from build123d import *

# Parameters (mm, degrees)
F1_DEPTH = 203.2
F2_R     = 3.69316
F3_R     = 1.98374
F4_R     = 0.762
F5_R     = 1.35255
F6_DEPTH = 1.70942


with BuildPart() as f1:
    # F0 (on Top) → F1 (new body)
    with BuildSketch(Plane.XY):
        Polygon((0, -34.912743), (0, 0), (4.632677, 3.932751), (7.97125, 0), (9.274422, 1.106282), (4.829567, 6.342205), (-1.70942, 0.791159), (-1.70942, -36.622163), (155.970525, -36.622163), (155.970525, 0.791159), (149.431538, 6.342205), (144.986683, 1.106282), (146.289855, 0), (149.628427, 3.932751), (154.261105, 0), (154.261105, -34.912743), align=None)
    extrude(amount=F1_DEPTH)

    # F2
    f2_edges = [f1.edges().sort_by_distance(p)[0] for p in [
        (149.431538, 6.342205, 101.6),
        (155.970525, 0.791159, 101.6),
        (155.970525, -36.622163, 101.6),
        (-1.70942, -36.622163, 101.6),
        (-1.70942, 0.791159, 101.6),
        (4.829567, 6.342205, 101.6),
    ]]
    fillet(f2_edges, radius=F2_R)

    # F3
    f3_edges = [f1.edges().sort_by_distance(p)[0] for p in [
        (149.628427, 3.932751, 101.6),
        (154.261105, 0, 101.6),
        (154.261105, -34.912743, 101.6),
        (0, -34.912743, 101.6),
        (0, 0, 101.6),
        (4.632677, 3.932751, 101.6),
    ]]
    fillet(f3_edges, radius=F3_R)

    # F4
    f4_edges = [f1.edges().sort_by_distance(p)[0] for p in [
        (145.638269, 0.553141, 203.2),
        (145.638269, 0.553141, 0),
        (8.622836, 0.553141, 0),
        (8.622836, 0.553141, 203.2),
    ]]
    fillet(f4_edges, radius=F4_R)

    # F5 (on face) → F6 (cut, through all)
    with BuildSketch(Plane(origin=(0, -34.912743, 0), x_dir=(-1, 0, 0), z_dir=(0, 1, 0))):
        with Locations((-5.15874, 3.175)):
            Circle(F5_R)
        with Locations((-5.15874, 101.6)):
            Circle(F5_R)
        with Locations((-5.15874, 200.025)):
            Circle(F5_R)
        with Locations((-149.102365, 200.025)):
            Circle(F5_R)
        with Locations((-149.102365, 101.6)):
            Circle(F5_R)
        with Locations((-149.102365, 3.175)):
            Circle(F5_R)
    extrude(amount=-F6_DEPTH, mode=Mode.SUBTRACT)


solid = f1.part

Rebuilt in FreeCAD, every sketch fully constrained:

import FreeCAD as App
import Part
import Sketcher
Q = App.Units.Quantity


def edges_at(feature, points):
    """Names of the edges that pass closest to the given points."""
    edges = feature.Shape.Edges
    near = lambda p: min(range(len(edges)), key=lambda i: edges[i].distToShape(Part.Vertex(*p))[0])
    return sorted({f"Edge{near(p) + 1}" for p in points})

doc = App.newDocument("Part")
body = doc.addObject("PartDesign::Body", "Body")

sketch1 = body.newObject("Sketcher::SketchObject", "Sketch")
sketch1.AttachmentSupport = (doc.getObject("XY_Plane"), [""])
sketch1.MapMode = "FlatFace"
sketch1.addGeometry(Part.LineSegment(App.Vector(0, -34.9, 0), App.Vector(0, 0, 0)), False)
sketch1.addGeometry(Part.LineSegment(App.Vector(0, 0, 0), App.Vector(4.6, 3.9, 0)), False)
sketch1.addGeometry(Part.LineSegment(App.Vector(4.6, 3.9, 0), App.Vector(8, 0, 0)), False)
sketch1.addGeometry(Part.LineSegment(App.Vector(8, 0, 0), App.Vector(9.3, 1.1, 0)), False)
sketch1.addGeometry(Part.LineSegment(App.Vector(9.3, 1.1, 0), App.Vector(4.8, 6.3, 0)), False)
sketch1.addGeometry(Part.LineSegment(App.Vector(4.8, 6.3, 0), App.Vector(-1.7, 0.8, 0)), False)
sketch1.addGeometry(Part.LineSegment(App.Vector(-1.7, 0.8, 0), App.Vector(-1.7, -36.6, 0)), False)
sketch1.addGeometry(Part.LineSegment(App.Vector(-1.7, -36.6, 0), App.Vector(156, -36.6, 0)), False)
sketch1.addGeometry(Part.LineSegment(App.Vector(156, -36.6, 0), App.Vector(156, 0.8, 0)), False)
sketch1.addGeometry(Part.LineSegment(App.Vector(156, 0.8, 0), App.Vector(149.4, 6.3, 0)), False)
sketch1.addGeometry(Part.LineSegment(App.Vector(149.4, 6.3, 0), App.Vector(145, 1.1, 0)), False)
sketch1.addGeometry(Part.LineSegment(App.Vector(145, 1.1, 0), App.Vector(146.3, 0, 0)), False)
sketch1.addGeometry(Part.LineSegment(App.Vector(146.3, 0, 0), App.Vector(149.6, 3.9, 0)), False)
sketch1.addGeometry(Part.LineSegment(App.Vector(149.6, 3.9, 0), App.Vector(154.3, 0, 0)), False)
sketch1.addGeometry(Part.LineSegment(App.Vector(154.3, 0, 0), App.Vector(154.3, -34.9, 0)), False)
sketch1.addGeometry(Part.LineSegment(App.Vector(154.3, -34.9, 0), App.Vector(0, -34.9, 0)), False)
sketch1.addConstraint(Sketcher.Constraint("Coincident", 0, 2, 1, 1))
sketch1.addConstraint(Sketcher.Constraint("Coincident", 1, 2, 2, 1))
sketch1.addConstraint(Sketcher.Constraint("Coincident", 2, 2, 3, 1))
sketch1.addConstraint(Sketcher.Constraint("Coincident", 3, 2, 4, 1))
sketch1.addConstraint(Sketcher.Constraint("Coincident", 4, 2, 5, 1))
sketch1.addConstraint(Sketcher.Constraint("Coincident", 5, 2, 6, 1))
sketch1.addConstraint(Sketcher.Constraint("Coincident", 6, 2, 7, 1))
sketch1.addConstraint(Sketcher.Constraint("Coincident", 7, 2, 8, 1))
sketch1.addConstraint(Sketcher.Constraint("Coincident", 8, 2, 9, 1))
sketch1.addConstraint(Sketcher.Constraint("Coincident", 9, 2, 10, 1))
sketch1.addConstraint(Sketcher.Constraint("Coincident", 10, 2, 11, 1))
sketch1.addConstraint(Sketcher.Constraint("Coincident", 11, 2, 12, 1))
sketch1.addConstraint(Sketcher.Constraint("Coincident", 12, 2, 13, 1))
sketch1.addConstraint(Sketcher.Constraint("Coincident", 13, 2, 14, 1))
sketch1.addConstraint(Sketcher.Constraint("Coincident", 14, 2, 15, 1))
sketch1.addConstraint(Sketcher.Constraint("Coincident", 15, 2, 0, 1))
sketch1.addConstraint(Sketcher.Constraint("Vertical", 0))
sketch1.addConstraint(Sketcher.Constraint("Vertical", 6))
sketch1.addConstraint(Sketcher.Constraint("Horizontal", 7))
sketch1.addConstraint(Sketcher.Constraint("Vertical", 8))
sketch1.addConstraint(Sketcher.Constraint("Vertical", 14))
sketch1.addConstraint(Sketcher.Constraint("Horizontal", 15))
sketch1.addConstraint(Sketcher.Constraint("Coincident", 0, 2, -1, 1))
sketch1.addConstraint(Sketcher.Constraint("PointOnObject", 2, 2, -1))
sketch1.addConstraint(Sketcher.Constraint("PointOnObject", 11, 2, -1))
sketch1.addConstraint(Sketcher.Constraint("PointOnObject", 13, 2, -1))
sketch1.addConstraint(Sketcher.Constraint("Perpendicular", 1, 2))
sketch1.addConstraint(Sketcher.Constraint("Perpendicular", 2, 3))
sketch1.addConstraint(Sketcher.Constraint("Perpendicular", 3, 4))
sketch1.addConstraint(Sketcher.Constraint("Perpendicular", 4, 5))
sketch1.addConstraint(Sketcher.Constraint("Perpendicular", 9, 10))
sketch1.addConstraint(Sketcher.Constraint("Perpendicular", 10, 11))
sketch1.addConstraint(Sketcher.Constraint("Perpendicular", 11, 12))
sketch1.addConstraint(Sketcher.Constraint("Perpendicular", 12, 13))
sketch1.addConstraint(Sketcher.Constraint("Horizontal", 5, 2, 8, 2))
sketch1.addConstraint(Sketcher.Constraint("Horizontal", 4, 2, 9, 2))
sketch1.addConstraint(Sketcher.Constraint("Horizontal", 3, 2, 10, 2))
sketch1.addConstraint(Sketcher.Constraint("Horizontal", 1, 2, 12, 2))
sketch1.addConstraint(Sketcher.Constraint("Equal", 5, 9))
sketch1.addConstraint(Sketcher.Constraint("Distance", 2, Q("0.2031 in")))
sketch1.addConstraint(Sketcher.Constraint("Distance", 3, Q("0.0673 in")))
sketch1.addConstraint(Sketcher.Constraint("Distance", 4, Q("0.2704 in")))
sketch1.addConstraint(Sketcher.Constraint("DistanceX", 5, 2, -1, 1, Q("0.0673 in")))
sketch1.addConstraint(Sketcher.Constraint("DistanceY", 7, 2, 14, 2, Q("0.0673 in")))
sketch1.addConstraint(Sketcher.Constraint("DistanceX", 12, 2, 8, 2, 6.342098))
sketch1.addConstraint(Sketcher.Constraint("DistanceX", 7, 1, 7, 2, 157.679945))
sketch1.addConstraint(Sketcher.Constraint("DistanceY", 0, 1, 0, 2, 34.912743))
pad1 = body.newObject("PartDesign::Pad", "Pad")
pad1.Profile = sketch1
pad1.Length = Q("8 in")
doc.recompute()

fillet = body.newObject("PartDesign::Fillet", "Fillet")
fillet.Base = (pad1, edges_at(pad1, [
    (149.432, 6.342, 101.6),
    (155.971, 0.791, 101.6),
    (155.971, -36.622, 101.6),
    (-1.709, -36.622, 101.6),
    (-1.709, 0.791, 101.6),
    (4.83, 6.342, 101.6),
]))
fillet.Radius = Q("0.1454 in")
doc.recompute()

fillet2 = body.newObject("PartDesign::Fillet", "Fillet001")
fillet2.Base = (fillet, edges_at(fillet, [
    (149.628, 3.933, 101.6),
    (154.261, 0, 101.6),
    (154.261, -34.913, 101.6),
    (0, -34.913, 101.6),
    (0, 0, 101.6),
    (4.633, 3.933, 101.6),
]))
fillet2.Radius = Q("0.0781 in")
doc.recompute()

fillet3 = body.newObject("PartDesign::Fillet", "Fillet002")
fillet3.Base = (fillet2, edges_at(fillet2, [
    (145.638, 0.553, 203.2),
    (145.638, 0.553, 0),
    (8.623, 0.553, 0),
    (8.623, 0.553, 203.2),
]))
fillet3.Radius = Q("0.03 in")

sketch2 = body.newObject("Sketcher::SketchObject", "Sketch001")
sketch2.AttachmentSupport = (doc.getObject("XZ_Plane"), [""])
sketch2.MapMode = "FlatFace"
sketch2.AttachmentOffset = App.Placement(App.Vector(0, 0, 34.912743), App.Rotation())
sketch2.addGeometry(Part.Circle(App.Vector(5.2, 3.2, 0), App.Vector(0, 0, 1), 1.4), False)
sketch2.addGeometry(Part.Circle(App.Vector(5.2, 101.6, 0), App.Vector(0, 0, 1), 1.4), False)
sketch2.addGeometry(Part.Circle(App.Vector(5.2, 200, 0), App.Vector(0, 0, 1), 1.4), False)
sketch2.addGeometry(Part.Circle(App.Vector(149.1, 200, 0), App.Vector(0, 0, 1), 1.4), False)
sketch2.addGeometry(Part.Circle(App.Vector(149.1, 101.6, 0), App.Vector(0, 0, 1), 1.4), False)
sketch2.addGeometry(Part.Circle(App.Vector(149.1, 3.2, 0), App.Vector(0, 0, 1), 1.4), False)
sketch2.addConstraint(Sketcher.Constraint("Equal", 0, 1))
sketch2.addConstraint(Sketcher.Constraint("Equal", 1, 2))
sketch2.addConstraint(Sketcher.Constraint("Equal", 2, 3))
sketch2.addConstraint(Sketcher.Constraint("Equal", 3, 4))
sketch2.addConstraint(Sketcher.Constraint("Equal", 4, 5))
sketch2.addConstraint(Sketcher.Constraint("Horizontal", 2, 3, 3, 3))
sketch2.addConstraint(Sketcher.Constraint("Horizontal", 1, 3, 4, 3))
sketch2.addConstraint(Sketcher.Constraint("Horizontal", 0, 3, 5, 3))
sketch2.addConstraint(Sketcher.Constraint("Vertical", 0, 3, 1, 3))
sketch2.addConstraint(Sketcher.Constraint("Vertical", 1, 3, 2, 3))
sketch2.addConstraint(Sketcher.Constraint("Vertical", 3, 3, 4, 3))
sketch2.addConstraint(Sketcher.Constraint("Vertical", 4, 3, 5, 3))
sketch2.addConstraint(Sketcher.Constraint("DistanceY", -1, 1, 1, 3, Q("4 in")))
sketch2.addConstraint(Sketcher.Constraint("Diameter", 0, Q("0.1065 in")))
sketch2.addConstraint(Sketcher.Constraint("DistanceY", 0, 3, 2, 3, Q("7.75 in")))
sketch2.addConstraint(Sketcher.Constraint("DistanceY", -1, 1, 0, 3, Q("0.125 in")))
sketch2.addConstraint(Sketcher.Constraint("DistanceX", -1, 1, 0, 3, Q("0.2031 in")))
sketch2.addConstraint(Sketcher.Constraint("DistanceX", -1, 1, 3, 3, 149.102365))
pocket1 = body.newObject("PartDesign::Pocket", "Pocket")
pocket1.Profile = sketch2
pocket1.Type = "ThroughAll"
pocket1.Reversed = True

doc.recompute()
